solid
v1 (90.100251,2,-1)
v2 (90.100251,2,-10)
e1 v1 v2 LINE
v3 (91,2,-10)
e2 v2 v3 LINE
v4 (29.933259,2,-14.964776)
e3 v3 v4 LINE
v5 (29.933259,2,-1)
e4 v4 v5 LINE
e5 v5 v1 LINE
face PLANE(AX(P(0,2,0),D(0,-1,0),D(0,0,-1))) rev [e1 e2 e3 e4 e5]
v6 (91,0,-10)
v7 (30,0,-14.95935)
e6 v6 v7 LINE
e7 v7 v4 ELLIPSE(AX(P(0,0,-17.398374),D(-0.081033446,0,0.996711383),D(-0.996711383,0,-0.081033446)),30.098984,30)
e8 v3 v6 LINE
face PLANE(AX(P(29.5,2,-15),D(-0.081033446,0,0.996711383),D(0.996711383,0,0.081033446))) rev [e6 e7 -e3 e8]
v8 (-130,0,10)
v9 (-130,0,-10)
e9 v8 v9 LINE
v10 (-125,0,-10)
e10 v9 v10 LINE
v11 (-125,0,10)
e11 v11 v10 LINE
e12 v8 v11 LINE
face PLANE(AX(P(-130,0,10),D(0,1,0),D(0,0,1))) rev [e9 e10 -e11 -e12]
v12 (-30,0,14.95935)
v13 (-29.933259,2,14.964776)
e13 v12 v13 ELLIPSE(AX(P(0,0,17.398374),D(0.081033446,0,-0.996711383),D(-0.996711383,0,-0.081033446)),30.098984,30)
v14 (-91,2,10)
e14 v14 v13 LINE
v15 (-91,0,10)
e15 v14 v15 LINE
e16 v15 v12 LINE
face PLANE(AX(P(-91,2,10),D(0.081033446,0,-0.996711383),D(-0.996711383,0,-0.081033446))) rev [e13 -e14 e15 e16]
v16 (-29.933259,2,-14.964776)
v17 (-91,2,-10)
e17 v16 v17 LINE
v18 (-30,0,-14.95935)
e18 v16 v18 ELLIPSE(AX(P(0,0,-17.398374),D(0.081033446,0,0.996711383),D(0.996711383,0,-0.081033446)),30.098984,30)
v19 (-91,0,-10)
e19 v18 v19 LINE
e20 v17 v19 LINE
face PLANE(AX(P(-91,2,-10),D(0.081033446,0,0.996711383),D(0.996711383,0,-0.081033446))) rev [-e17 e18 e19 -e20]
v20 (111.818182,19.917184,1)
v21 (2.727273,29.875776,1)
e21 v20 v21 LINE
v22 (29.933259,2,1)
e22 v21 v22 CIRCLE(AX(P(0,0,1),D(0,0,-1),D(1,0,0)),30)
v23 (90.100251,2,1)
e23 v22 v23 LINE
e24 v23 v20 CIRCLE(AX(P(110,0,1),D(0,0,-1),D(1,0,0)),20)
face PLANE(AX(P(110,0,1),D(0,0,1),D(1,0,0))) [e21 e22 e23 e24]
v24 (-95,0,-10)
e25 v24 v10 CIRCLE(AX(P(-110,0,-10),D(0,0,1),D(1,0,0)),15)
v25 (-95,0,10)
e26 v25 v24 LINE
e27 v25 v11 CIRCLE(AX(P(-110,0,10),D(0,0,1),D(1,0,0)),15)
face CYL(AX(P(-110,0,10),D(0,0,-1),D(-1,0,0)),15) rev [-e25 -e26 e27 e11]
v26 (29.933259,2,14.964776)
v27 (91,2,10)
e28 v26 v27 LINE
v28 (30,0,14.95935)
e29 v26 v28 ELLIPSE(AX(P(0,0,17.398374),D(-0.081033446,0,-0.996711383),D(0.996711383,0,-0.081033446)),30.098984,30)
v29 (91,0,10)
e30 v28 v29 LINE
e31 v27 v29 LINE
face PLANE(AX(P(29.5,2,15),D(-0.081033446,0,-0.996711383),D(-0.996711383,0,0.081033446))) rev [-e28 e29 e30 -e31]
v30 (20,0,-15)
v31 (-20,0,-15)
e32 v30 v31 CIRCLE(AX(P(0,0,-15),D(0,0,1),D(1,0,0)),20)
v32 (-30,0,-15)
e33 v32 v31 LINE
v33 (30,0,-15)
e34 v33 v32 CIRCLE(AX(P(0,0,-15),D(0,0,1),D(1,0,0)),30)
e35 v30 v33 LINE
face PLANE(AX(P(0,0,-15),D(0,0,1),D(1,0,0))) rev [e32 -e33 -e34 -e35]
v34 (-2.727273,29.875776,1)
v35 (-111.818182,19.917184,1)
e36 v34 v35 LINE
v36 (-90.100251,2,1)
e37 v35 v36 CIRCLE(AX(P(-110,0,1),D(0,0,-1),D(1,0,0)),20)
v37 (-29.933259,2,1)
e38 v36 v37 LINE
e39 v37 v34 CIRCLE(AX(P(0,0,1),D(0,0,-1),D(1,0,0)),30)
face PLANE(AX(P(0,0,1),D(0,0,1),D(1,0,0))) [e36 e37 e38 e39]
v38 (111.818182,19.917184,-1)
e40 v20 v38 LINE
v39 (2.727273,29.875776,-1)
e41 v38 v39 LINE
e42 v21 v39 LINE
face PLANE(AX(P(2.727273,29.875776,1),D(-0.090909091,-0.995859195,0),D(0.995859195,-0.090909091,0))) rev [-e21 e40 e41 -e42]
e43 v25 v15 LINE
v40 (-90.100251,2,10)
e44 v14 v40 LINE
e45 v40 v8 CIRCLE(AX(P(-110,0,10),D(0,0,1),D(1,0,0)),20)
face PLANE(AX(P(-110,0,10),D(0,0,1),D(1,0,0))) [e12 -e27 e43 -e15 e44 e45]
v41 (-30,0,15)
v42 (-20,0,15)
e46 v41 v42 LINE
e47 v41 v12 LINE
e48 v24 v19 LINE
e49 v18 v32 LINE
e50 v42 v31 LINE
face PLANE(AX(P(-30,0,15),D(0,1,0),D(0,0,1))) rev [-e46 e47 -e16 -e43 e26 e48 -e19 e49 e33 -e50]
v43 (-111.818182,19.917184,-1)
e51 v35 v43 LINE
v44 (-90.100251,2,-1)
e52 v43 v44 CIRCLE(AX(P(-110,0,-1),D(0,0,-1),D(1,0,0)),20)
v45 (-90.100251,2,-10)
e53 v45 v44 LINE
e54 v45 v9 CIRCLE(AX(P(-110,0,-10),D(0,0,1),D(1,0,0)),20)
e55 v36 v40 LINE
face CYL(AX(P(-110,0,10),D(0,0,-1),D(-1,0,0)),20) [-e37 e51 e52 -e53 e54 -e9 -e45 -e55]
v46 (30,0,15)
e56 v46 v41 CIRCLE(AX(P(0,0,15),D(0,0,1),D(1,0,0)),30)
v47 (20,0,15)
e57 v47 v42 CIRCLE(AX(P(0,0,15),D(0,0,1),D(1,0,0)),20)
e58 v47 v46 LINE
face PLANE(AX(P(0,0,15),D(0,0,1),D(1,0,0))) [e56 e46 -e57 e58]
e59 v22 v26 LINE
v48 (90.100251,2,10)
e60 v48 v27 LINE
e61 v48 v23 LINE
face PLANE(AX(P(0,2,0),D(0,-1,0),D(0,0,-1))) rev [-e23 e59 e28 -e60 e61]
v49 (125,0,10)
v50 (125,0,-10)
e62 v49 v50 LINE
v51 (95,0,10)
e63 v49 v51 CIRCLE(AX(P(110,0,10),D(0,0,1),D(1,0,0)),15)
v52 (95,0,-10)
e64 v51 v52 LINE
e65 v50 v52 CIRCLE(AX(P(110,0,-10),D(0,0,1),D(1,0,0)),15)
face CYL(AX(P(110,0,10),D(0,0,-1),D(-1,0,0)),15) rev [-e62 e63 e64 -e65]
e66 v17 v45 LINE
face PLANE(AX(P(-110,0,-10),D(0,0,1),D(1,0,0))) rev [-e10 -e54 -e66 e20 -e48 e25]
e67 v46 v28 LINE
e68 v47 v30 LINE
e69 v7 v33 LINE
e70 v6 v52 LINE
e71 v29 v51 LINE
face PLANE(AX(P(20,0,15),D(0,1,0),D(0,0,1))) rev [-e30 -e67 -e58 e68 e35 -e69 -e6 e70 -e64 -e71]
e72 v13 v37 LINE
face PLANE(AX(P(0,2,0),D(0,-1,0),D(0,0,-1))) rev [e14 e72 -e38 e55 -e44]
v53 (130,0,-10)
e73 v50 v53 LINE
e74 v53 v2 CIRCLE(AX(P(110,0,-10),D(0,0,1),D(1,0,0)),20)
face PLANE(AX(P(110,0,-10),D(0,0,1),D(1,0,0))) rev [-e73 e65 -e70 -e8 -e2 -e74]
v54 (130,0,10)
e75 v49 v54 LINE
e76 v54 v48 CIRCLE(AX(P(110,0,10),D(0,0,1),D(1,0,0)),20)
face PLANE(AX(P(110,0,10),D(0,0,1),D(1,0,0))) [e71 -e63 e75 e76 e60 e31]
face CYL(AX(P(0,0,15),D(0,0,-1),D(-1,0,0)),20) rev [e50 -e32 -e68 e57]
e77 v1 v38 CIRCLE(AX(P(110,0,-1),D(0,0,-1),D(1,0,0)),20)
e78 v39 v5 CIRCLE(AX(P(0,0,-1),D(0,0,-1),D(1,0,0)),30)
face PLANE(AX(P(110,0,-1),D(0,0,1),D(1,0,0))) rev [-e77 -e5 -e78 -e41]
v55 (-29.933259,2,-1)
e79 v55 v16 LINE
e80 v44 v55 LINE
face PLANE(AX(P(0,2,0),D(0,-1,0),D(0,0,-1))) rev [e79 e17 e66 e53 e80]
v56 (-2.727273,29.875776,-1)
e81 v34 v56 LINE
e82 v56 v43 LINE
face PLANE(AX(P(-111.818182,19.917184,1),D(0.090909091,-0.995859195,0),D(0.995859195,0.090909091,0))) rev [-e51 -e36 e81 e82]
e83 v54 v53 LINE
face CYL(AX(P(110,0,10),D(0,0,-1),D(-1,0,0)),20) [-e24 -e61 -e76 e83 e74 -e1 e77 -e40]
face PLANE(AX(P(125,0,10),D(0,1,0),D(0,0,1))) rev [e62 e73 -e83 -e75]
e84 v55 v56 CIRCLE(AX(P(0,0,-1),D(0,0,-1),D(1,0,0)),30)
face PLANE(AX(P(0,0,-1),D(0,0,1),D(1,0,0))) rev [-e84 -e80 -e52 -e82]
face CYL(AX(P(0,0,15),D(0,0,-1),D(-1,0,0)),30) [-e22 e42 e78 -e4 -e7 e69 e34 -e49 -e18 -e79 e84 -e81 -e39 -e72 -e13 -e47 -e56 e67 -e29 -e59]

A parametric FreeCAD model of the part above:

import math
import FreeCAD as App
import Part
import Sketcher

doc = App.newDocument("Part")
body = doc.addObject("PartDesign::Body", "Body")

sketch1 = body.newObject("Sketcher::SketchObject", "Sketch")
sketch1.AttachmentSupport = (doc.getObject("XY_Plane"), [""])
sketch1.MapMode = "FlatFace"
sketch1.addGeometry(Part.LineSegment(App.Vector(-30, 0, 0), App.Vector(-20, 0, 0)), False)
sketch1.addGeometry(Part.ArcOfCircle(Part.Circle(App.Vector(0, 0, 0), App.Vector(0, 0, 1), 20), math.radians(0), math.radians(180)), False)
sketch1.addGeometry(Part.LineSegment(App.Vector(20, 0, 0), App.Vector(30, 0, 0)), False)
sketch1.addGeometry(Part.ArcOfCircle(Part.Circle(App.Vector(0, 0, 0), App.Vector(0, 0, 1), 30), math.radians(0), math.radians(180)), False)
sketch1.addConstraint(Sketcher.Constraint("Coincident", 0, 2, 1, 2))
sketch1.addConstraint(Sketcher.Constraint("Coincident", 1, 1, 2, 1))
sketch1.addConstraint(Sketcher.Constraint("Coincident", 2, 2, 3, 1))
sketch1.addConstraint(Sketcher.Constraint("Coincident", 3, 2, 0, 1))
sketch1.addConstraint(Sketcher.Constraint("Horizontal", 0))
sketch1.addConstraint(Sketcher.Constraint("Horizontal", 2))
sketch1.addConstraint(Sketcher.Constraint("Coincident", 1, 3, -1, 1))
sketch1.addConstraint(Sketcher.Constraint("Coincident", 3, 3, -1, 1))
sketch1.addConstraint(Sketcher.Constraint("PointOnObject", 0, 2, -1))
sketch1.addConstraint(Sketcher.Constraint("PointOnObject", 1, 1, -1))
sketch1.addConstraint(Sketcher.Constraint("Radius", 1, 20.0))
sketch1.addConstraint(Sketcher.Constraint("Radius", 3, 30.0))
pad1 = body.newObject("PartDesign::Pad", "Pad")
pad1.Profile = sketch1
pad1.Length = 30
pad1.Midplane = True
body2 = doc.addObject("PartDesign::Body", "Body001")

sketch2 = body2.newObject("Sketcher::SketchObject", "Sketch001")
sketch2.AttachmentSupport = (doc.getObject("XY_Plane001"), [""])
sketch2.MapMode = "FlatFace"
sketch2.addGeometry(Part.LineSegment(App.Vector(-130, 0, 0), App.Vector(-125, 0, 0)), False)
sketch2.addGeometry(Part.ArcOfCircle(Part.Circle(App.Vector(-110, 0, 0), App.Vector(0, 0, 1), 15), math.radians(0), math.radians(180)), False)
sketch2.addGeometry(Part.LineSegment(App.Vector(-95, 0, 0), App.Vector(-90, 0, 0)), False)
sketch2.addGeometry(Part.ArcOfCircle(Part.Circle(App.Vector(-110, 0, 0), App.Vector(0, 0, 1), 20), math.radians(0), math.radians(180)), False)
sketch2.addConstraint(Sketcher.Constraint("Coincident", 0, 2, 1, 2))
sketch2.addConstraint(Sketcher.Constraint("Coincident", 1, 1, 2, 1))
sketch2.addConstraint(Sketcher.Constraint("Coincident", 2, 2, 3, 1))
sketch2.addConstraint(Sketcher.Constraint("Coincident", 3, 2, 0, 1))
sketch2.addConstraint(Sketcher.Constraint("Horizontal", 0))
sketch2.addConstraint(Sketcher.Constraint("Horizontal", 2))
sketch2.addConstraint(Sketcher.Constraint("Coincident", 3, 3, 1, 3))
sketch2.addConstraint(Sketcher.Constraint("PointOnObject", 1, 3, -1))
sketch2.addConstraint(Sketcher.Constraint("PointOnObject", 0, 2, -1))
sketch2.addConstraint(Sketcher.Constraint("PointOnObject", 1, 1, -1))
sketch2.addConstraint(Sketcher.Constraint("Radius", 1, 15.0))
sketch2.addConstraint(Sketcher.Constraint("Radius", 3, 20.0))
sketch2.addConstraint(Sketcher.Constraint("DistanceX", 1, 3, -1, 1, 110.0))
pad2 = body2.newObject("PartDesign::Pad", "Pad001")
pad2.Profile = sketch2
pad2.Length = 20
pad2.Midplane = True
body3 = doc.addObject("PartDesign::Body", "Body002")

sketch3 = body3.newObject("Sketcher::SketchObject", "Sketch002")
sketch3.AttachmentSupport = (doc.getObject("XY_Plane002"), [""])
sketch3.MapMode = "FlatFace"
sketch3.addGeometry(Part.LineSegment(App.Vector(90, 0, 0), App.Vector(95, 0, 0)), False)
sketch3.addGeometry(Part.ArcOfCircle(Part.Circle(App.Vector(110, 0, 0), App.Vector(0, 0, 1), 15), math.radians(0), math.radians(180)), False)
sketch3.addGeometry(Part.LineSegment(App.Vector(125, 0, 0), App.Vector(130, 0, 0)), False)
sketch3.addGeometry(Part.ArcOfCircle(Part.Circle(App.Vector(110, 0, 0), App.Vector(0, 0, 1), 20), math.radians(0), math.radians(180)), False)
sketch3.addConstraint(Sketcher.Constraint("Coincident", 0, 2, 1, 2))
sketch3.addConstraint(Sketcher.Constraint("Coincident", 1, 1, 2, 1))
sketch3.addConstraint(Sketcher.Constraint("Coincident", 2, 2, 3, 1))
sketch3.addConstraint(Sketcher.Constraint("Coincident", 3, 2, 0, 1))
sketch3.addConstraint(Sketcher.Constraint("Horizontal", 0))
sketch3.addConstraint(Sketcher.Constraint("Horizontal", 2))
sketch3.addConstraint(Sketcher.Constraint("Coincident", 3, 3, 1, 3))
sketch3.addConstraint(Sketcher.Constraint("PointOnObject", 1, 3, -1))
sketch3.addConstraint(Sketcher.Constraint("PointOnObject", 0, 2, -1))
sketch3.addConstraint(Sketcher.Constraint("PointOnObject", 1, 1, -1))
sketch3.addConstraint(Sketcher.Constraint("Radius", 1, 15.0))
sketch3.addConstraint(Sketcher.Constraint("Radius", 3, 20.0))
sketch3.addConstraint(Sketcher.Constraint("DistanceX", -1, 1, 1, 3, 110.0))
pad3 = body3.newObject("PartDesign::Pad", "Pad002")
pad3.Profile = sketch3
pad3.Length = 20
pad3.Midplane = True
body.AllowCompound = True
doc.recompute()

boolean = body.newObject("PartDesign::Boolean", "Boolean")
boolean.Type = "Fuse"
boolean.addObjects([body2])
doc.recompute()

boolean2 = body.newObject("PartDesign::Boolean", "Boolean001")
boolean2.Type = "Fuse"
boolean2.addObjects([body3])

sketch4 = body.newObject("Sketcher::SketchObject", "Sketch003")
sketch4.AttachmentSupport = (doc.getObject("XY_Plane"), [""])
sketch4.MapMode = "FlatFace"
sketch4.addGeometry(Part.LineSegment(App.Vector(-2.727273, 29.875776, 0), App.Vector(-111.818182, 19.917184, 0)), False)
sketch4.addGeometry(Part.ArcOfCircle(Part.Circle(App.Vector(-110, 0, 0), App.Vector(0, 0, 1), 20), math.radians(0), math.radians(95.215909)), False)
sketch4.addGeometry(Part.LineSegment(App.Vector(-90, 0, 0), App.Vector(-30, 0, 0)), False)
sketch4.addGeometry(Part.ArcOfCircle(Part.Circle(App.Vector(0, 0, 0), App.Vector(0, 0, 1), 30), math.radians(95.215909), math.radians(180)), False)
sketch4.addGeometry(Part.LineSegment(App.Vector(111.818182, 19.917184, 0), App.Vector(2.727273, 29.875776, 0)), False)
sketch4.addGeometry(Part.ArcOfCircle(Part.Circle(App.Vector(0, 0, 0), App.Vector(0, 0, 1), 30), math.radians(0), math.radians(84.784091)), False)
sketch4.addGeometry(Part.LineSegment(App.Vector(30, 0, 0), App.Vector(90, 0, 0)), False)
sketch4.addGeometry(Part.ArcOfCircle(Part.Circle(App.Vector(110, 0, 0), App.Vector(0, 0, 1), 20), math.radians(84.784091), math.radians(180)), False)
sketch4.addConstraint(Sketcher.Constraint("Tangent", 0, 2, 1, 2))
sketch4.addConstraint(Sketcher.Constraint("Coincident", 1, 1, 2, 1))
sketch4.addConstraint(Sketcher.Constraint("Coincident", 2, 2, 3, 2))
sketch4.addConstraint(Sketcher.Constraint("Tangent", 3, 1, 0, 1))
sketch4.addConstraint(Sketcher.Constraint("Tangent", 4, 2, 5, 2))
sketch4.addConstraint(Sketcher.Constraint("Coincident", 5, 1, 6, 1))
sketch4.addConstraint(Sketcher.Constraint("Coincident", 6, 2, 7, 2))
sketch4.addConstraint(Sketcher.Constraint("Tangent", 7, 1, 4, 1))
sketch4.addConstraint(Sketcher.Constraint("Horizontal", 2))
sketch4.addConstraint(Sketcher.Constraint("Horizontal", 6))
sketch4.addConstraint(Sketcher.Constraint("Coincident", 3, 3, -1, 1))
sketch4.addConstraint(Sketcher.Constraint("Coincident", 5, 3, -1, 1))
sketch4.addConstraint(Sketcher.Constraint("Equal", 3, 5))
sketch4.addConstraint(Sketcher.Constraint("Equal", 1, 7))
sketch4.addConstraint(Sketcher.Constraint("Symmetric", 1, 3, 7, 3, -1, 1))
sketch4.addConstraint(Sketcher.Constraint("PointOnObject", 1, 3, -1))
sketch4.addConstraint(Sketcher.Constraint("PointOnObject", 1, 1, -1))
sketch4.addConstraint(Sketcher.Constraint("PointOnObject", 5, 1, -1))
sketch4.addConstraint(Sketcher.Constraint("Radius", 1, 20.0))
sketch4.addConstraint(Sketcher.Constraint("Radius", 3, 30.0))
sketch4.addConstraint(Sketcher.Constraint("DistanceX", 2, 1, 2, 2, 60.0))
pad4 = body.newObject("PartDesign::Pad", "Pad003")
pad4.Profile = sketch4
pad4.Length = 2
pad4.Midplane = True

sketch5 = body.newObject("Sketcher::SketchObject", "Sketch004")
sketch5.AttachmentSupport = (doc.getObject("XZ_Plane"), [""])
sketch5.MapMode = "FlatFace"
sketch5.addGeometry(Part.LineSegment(App.Vector(91, 10, 0), App.Vector(91, -10, 0)), False)
sketch5.addGeometry(Part.LineSegment(App.Vector(91, -10, 0), App.Vector(29.5, -15, 0)), False)
sketch5.addGeometry(Part.LineSegment(App.Vector(29.5, -15, 0), App.Vector(29.5, 15, 0)), False)
sketch5.addGeometry(Part.LineSegment(App.Vector(29.5, 15, 0), App.Vector(91, 10, 0)), False)
sketch5.addGeometry(Part.LineSegment(App.Vector(-29.5, 15, 0), App.Vector(-29.5, -15, 0)), False)
sketch5.addGeometry(Part.LineSegment(App.Vector(-29.5, -15, 0), App.Vector(-91, -10, 0)), False)
sketch5.addGeometry(Part.LineSegment(App.Vector(-91, -10, 0), App.Vector(-91, 10, 0)), False)
sketch5.addGeometry(Part.LineSegment(App.Vector(-91, 10, 0), App.Vector(-29.5, 15, 0)), False)
sketch5.addConstraint(Sketcher.Constraint("Coincident", 0, 2, 1, 1))
sketch5.addConstraint(Sketcher.Constraint("Coincident", 1, 2, 2, 1))
sketch5.addConstraint(Sketcher.Constraint("Coincident", 2, 2, 3, 1))
sketch5.addConstraint(Sketcher.Constraint("Coincident", 3, 2, 0, 1))
sketch5.addConstraint(Sketcher.Constraint("Coincident", 4, 2, 5, 1))
sketch5.addConstraint(Sketcher.Constraint("Coincident", 5, 2, 6, 1))
sketch5.addConstraint(Sketcher.Constraint("Coincident", 6, 2, 7, 1))
sketch5.addConstraint(Sketcher.Constraint("Coincident", 7, 2, 4, 1))
sketch5.addConstraint(Sketcher.Constraint("Vertical", 0))
sketch5.addConstraint(Sketcher.Constraint("Vertical", 2))
sketch5.addConstraint(Sketcher.Constraint("Vertical", 4))
sketch5.addConstraint(Sketcher.Constraint("Vertical", 6))
sketch5.addConstraint(Sketcher.Constraint("Symmetric", 2, 2, 4, 2, -1, 1))
sketch5.addConstraint(Sketcher.Constraint("Symmetric", 3, 2, 5, 2, -1, 1))
sketch5.addConstraint(Sketcher.Constraint("Parallel", 1, 7))
sketch5.addConstraint(Sketcher.Constraint("Horizontal", 1, 2, 4, 2))
sketch5.addConstraint(Sketcher.Constraint("Horizontal", 0, 2, 5, 2))
sketch5.addConstraint(Sketcher.Constraint("Horizontal", 3, 2, 6, 2))
sketch5.addConstraint(Sketcher.Constraint("DistanceY", 0, 2, 0, 1, 20.0))
sketch5.addConstraint(Sketcher.Constraint("DistanceY", 2, 1, 2, 2, 30.0))
sketch5.addConstraint(Sketcher.Constraint("DistanceX", -1, 1, 0, 2, 91.0))
sketch5.addConstraint(Sketcher.Constraint("DistanceX", 4, 2, 1, 2, 59.0))
pad5 = body.newObject("PartDesign::Pad", "Pad004")
pad5.Profile = sketch5
pad5.Length = 2
pad5.Reversed = True

doc.recompute()
